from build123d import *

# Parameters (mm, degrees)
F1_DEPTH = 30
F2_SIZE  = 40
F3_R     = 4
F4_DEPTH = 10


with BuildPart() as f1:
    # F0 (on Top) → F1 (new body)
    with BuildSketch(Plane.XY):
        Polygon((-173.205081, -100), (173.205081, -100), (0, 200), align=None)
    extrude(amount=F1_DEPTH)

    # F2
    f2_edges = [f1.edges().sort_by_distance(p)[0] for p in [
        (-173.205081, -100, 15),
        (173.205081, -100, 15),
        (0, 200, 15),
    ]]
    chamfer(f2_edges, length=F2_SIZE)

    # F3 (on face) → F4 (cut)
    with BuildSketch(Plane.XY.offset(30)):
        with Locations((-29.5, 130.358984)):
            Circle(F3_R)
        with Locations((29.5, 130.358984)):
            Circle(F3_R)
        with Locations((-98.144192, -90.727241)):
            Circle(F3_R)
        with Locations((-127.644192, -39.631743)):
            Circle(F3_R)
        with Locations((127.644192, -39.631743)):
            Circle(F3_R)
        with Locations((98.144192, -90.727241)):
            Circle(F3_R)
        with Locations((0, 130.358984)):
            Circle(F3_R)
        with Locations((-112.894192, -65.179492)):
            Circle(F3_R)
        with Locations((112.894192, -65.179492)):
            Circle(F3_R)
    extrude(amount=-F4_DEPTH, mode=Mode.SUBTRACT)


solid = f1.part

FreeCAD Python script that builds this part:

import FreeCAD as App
import Part
import Sketcher
Q = App.Units.Quantity


def edges_at(feature, points):
    """Names of the edges that pass closest to the given points."""
    edges = feature.Shape.Edges
    near = lambda p: min(range(len(edges)), key=lambda i: edges[i].distToShape(Part.Vertex(*p))[0])
    return sorted({f"Edge{near(p) + 1}" for p in points})

doc = App.newDocument("Part")
body = doc.addObject("PartDesign::Body", "Body")

# Sketch on XY plane
sketch1 = doc.addObject("Sketcher::SketchObject", "Sketch")
body.addObject(sketch1)
sketch1.AttachmentSupport = (doc.XY_Plane, [""])
sketch1.MapMode = "FlatFace"
sketch1.addGeometry(Part.LineSegment(App.Vector(-173, -100, 0), App.Vector(173, -100, 0)), False)
sketch1.addGeometry(Part.LineSegment(App.Vector(173, -100, 0), App.Vector(0, 200, 0)), False)
sketch1.addGeometry(Part.LineSegment(App.Vector(0, 200, 0), App.Vector(-173, -100, 0)), False)
sketch1.addConstraint(Sketcher.Constraint("Coincident", 0, 2, 1, 1))
sketch1.addConstraint(Sketcher.Constraint("Coincident", 1, 2, 2, 1))
sketch1.addConstraint(Sketcher.Constraint("Coincident", 2, 2, 0, 1))
sketch1.addConstraint(Sketcher.Constraint("Horizontal", 0))
sketch1.addConstraint(Sketcher.Constraint("PointOnObject", 1, 2, -2))
sketch1.addConstraint(Sketcher.Constraint("Equal", 1, 2))
sketch1.addConstraint(Sketcher.Constraint("Angle", 1, Q("120 deg")))
sketch1.addConstraint(Sketcher.Constraint("DistanceY", 0, 2, -1, 1, 100.0))
sketch1.addConstraint(Sketcher.Constraint("DistanceY", -1, 1, 1, 2, 200.0))
pad1 = doc.addObject("PartDesign::Pad", "Pad")
body.addObject(pad1)
pad1.Profile = sketch1
pad1.Length = 30
doc.recompute()

chamfer = doc.addObject("PartDesign::Chamfer", "Chamfer")
body.addObject(chamfer)
chamfer.Base = (pad1, edges_at(pad1, [(-173.205, -100, 15), (173.205, -100, 15), (0, 200, 15)]))
chamfer.Size = 40

# Sketch on XY plane
sketch2 = doc.addObject("Sketcher::SketchObject", "Sketch001")
body.addObject(sketch2)
sketch2.AttachmentSupport = (doc.XY_Plane, [""])
sketch2.MapMode = "FlatFace"
sketch2.AttachmentOffset = App.Placement(App.Vector(0, 0, 30), App.Rotation())
sketch2.addGeometry(Part.Circle(App.Vector(-29.5, 130.4, 0), App.Vector(0, 0, 1), 4), False)
sketch2.addGeometry(Part.Circle(App.Vector(29.5, 130.4, 0), App.Vector(0, 0, 1), 4), False)
sketch2.addGeometry(Part.Circle(App.Vector(-98.1, -90.7, 0), App.Vector(0, 0, 1), 4), False)
sketch2.addGeometry(Part.Circle(App.Vector(-127.6, -39.6, 0), App.Vector(0, 0, 1), 4), False)
sketch2.addGeometry(Part.Circle(App.Vector(127.6, -39.6, 0), App.Vector(0, 0, 1), 4), False)
sketch2.addGeometry(Part.Circle(App.Vector(98.1, -90.7, 0), App.Vector(0, 0, 1), 4), False)
sketch2.addGeometry(Part.Circle(App.Vector(0, 130.4, 0), App.Vector(0, 0, 1), 4), False)
sketch2.addGeometry(Part.Circle(App.Vector(-112.9, -65.2, 0), App.Vector(0, 0, 1), 4), False)
sketch2.addGeometry(Part.Circle(App.Vector(112.9, -65.2, 0), App.Vector(0, 0, 1), 4), False)
sketch2.addConstraint(Sketcher.Constraint("Equal", 0, 1))
sketch2.addConstraint(Sketcher.Constraint("Equal", 1, 2))
sketch2.addConstraint(Sketcher.Constraint("Equal", 2, 3))
sketch2.addConstraint(Sketcher.Constraint("Equal", 3, 4))
sketch2.addConstraint(Sketcher.Constraint("Equal", 4, 5))
sketch2.addConstraint(Sketcher.Constraint("Equal", 5, 6))
sketch2.addConstraint(Sketcher.Constraint("Equal", 6, 7))
sketch2.addConstraint(Sketcher.Constraint("Equal", 7, 8))
sketch2.addConstraint(Sketcher.Constraint("Symmetric", 0, 3, 1, 3, -2))
sketch2.addConstraint(Sketcher.Constraint("Symmetric", 3, 3, 4, 3, -2))
sketch2.addConstraint(Sketcher.Constraint("Symmetric", 2, 3, 5, 3, -2))
sketch2.addConstraint(Sketcher.Constraint("Symmetric", 7, 3, 8, 3, -2))
sketch2.addConstraint(Sketcher.Constraint("PointOnObject", 6, 3, -2))
sketch2.addConstraint(Sketcher.Constraint("Horizontal", 1, 3, 6, 3))
sketch2.addConstraint(Sketcher.Constraint("Diameter", 0, 8.0))
sketch2.addConstraint(Sketcher.Constraint("DistanceX", 0, 3, 1, 3, 59.0))
sketch2.addConstraint(Sketcher.Constraint("DistanceX", 3, 3, 2, 3, 29.5))
sketch2.addConstraint(Sketcher.Constraint("DistanceX", 3, 3, 7, 3, 14.75))
sketch2.addConstraint(Sketcher.Constraint("DistanceY", 2, 3, 3, 3, 51.095498))
sketch2.addConstraint(Sketcher.Constraint("DistanceY", 2, 3, -1, 1, 90.727241))
sketch2.addConstraint(Sketcher.Constraint("DistanceY", 7, 3, -1, 1, 65.179492))
sketch2.addConstraint(Sketcher.Constraint("DistanceX", 3, 3, 1, 3, 157.144192))
sketch2.addConstraint(Sketcher.Constraint("DistanceY", -1, 1, 0, 3, 130.358984))
pocket1 = doc.addObject("PartDesign::Pocket", "Pocket")
body.addObject(pocket1)
pocket1.Profile = sketch2
pocket1.Length = 10

doc.recompute()
